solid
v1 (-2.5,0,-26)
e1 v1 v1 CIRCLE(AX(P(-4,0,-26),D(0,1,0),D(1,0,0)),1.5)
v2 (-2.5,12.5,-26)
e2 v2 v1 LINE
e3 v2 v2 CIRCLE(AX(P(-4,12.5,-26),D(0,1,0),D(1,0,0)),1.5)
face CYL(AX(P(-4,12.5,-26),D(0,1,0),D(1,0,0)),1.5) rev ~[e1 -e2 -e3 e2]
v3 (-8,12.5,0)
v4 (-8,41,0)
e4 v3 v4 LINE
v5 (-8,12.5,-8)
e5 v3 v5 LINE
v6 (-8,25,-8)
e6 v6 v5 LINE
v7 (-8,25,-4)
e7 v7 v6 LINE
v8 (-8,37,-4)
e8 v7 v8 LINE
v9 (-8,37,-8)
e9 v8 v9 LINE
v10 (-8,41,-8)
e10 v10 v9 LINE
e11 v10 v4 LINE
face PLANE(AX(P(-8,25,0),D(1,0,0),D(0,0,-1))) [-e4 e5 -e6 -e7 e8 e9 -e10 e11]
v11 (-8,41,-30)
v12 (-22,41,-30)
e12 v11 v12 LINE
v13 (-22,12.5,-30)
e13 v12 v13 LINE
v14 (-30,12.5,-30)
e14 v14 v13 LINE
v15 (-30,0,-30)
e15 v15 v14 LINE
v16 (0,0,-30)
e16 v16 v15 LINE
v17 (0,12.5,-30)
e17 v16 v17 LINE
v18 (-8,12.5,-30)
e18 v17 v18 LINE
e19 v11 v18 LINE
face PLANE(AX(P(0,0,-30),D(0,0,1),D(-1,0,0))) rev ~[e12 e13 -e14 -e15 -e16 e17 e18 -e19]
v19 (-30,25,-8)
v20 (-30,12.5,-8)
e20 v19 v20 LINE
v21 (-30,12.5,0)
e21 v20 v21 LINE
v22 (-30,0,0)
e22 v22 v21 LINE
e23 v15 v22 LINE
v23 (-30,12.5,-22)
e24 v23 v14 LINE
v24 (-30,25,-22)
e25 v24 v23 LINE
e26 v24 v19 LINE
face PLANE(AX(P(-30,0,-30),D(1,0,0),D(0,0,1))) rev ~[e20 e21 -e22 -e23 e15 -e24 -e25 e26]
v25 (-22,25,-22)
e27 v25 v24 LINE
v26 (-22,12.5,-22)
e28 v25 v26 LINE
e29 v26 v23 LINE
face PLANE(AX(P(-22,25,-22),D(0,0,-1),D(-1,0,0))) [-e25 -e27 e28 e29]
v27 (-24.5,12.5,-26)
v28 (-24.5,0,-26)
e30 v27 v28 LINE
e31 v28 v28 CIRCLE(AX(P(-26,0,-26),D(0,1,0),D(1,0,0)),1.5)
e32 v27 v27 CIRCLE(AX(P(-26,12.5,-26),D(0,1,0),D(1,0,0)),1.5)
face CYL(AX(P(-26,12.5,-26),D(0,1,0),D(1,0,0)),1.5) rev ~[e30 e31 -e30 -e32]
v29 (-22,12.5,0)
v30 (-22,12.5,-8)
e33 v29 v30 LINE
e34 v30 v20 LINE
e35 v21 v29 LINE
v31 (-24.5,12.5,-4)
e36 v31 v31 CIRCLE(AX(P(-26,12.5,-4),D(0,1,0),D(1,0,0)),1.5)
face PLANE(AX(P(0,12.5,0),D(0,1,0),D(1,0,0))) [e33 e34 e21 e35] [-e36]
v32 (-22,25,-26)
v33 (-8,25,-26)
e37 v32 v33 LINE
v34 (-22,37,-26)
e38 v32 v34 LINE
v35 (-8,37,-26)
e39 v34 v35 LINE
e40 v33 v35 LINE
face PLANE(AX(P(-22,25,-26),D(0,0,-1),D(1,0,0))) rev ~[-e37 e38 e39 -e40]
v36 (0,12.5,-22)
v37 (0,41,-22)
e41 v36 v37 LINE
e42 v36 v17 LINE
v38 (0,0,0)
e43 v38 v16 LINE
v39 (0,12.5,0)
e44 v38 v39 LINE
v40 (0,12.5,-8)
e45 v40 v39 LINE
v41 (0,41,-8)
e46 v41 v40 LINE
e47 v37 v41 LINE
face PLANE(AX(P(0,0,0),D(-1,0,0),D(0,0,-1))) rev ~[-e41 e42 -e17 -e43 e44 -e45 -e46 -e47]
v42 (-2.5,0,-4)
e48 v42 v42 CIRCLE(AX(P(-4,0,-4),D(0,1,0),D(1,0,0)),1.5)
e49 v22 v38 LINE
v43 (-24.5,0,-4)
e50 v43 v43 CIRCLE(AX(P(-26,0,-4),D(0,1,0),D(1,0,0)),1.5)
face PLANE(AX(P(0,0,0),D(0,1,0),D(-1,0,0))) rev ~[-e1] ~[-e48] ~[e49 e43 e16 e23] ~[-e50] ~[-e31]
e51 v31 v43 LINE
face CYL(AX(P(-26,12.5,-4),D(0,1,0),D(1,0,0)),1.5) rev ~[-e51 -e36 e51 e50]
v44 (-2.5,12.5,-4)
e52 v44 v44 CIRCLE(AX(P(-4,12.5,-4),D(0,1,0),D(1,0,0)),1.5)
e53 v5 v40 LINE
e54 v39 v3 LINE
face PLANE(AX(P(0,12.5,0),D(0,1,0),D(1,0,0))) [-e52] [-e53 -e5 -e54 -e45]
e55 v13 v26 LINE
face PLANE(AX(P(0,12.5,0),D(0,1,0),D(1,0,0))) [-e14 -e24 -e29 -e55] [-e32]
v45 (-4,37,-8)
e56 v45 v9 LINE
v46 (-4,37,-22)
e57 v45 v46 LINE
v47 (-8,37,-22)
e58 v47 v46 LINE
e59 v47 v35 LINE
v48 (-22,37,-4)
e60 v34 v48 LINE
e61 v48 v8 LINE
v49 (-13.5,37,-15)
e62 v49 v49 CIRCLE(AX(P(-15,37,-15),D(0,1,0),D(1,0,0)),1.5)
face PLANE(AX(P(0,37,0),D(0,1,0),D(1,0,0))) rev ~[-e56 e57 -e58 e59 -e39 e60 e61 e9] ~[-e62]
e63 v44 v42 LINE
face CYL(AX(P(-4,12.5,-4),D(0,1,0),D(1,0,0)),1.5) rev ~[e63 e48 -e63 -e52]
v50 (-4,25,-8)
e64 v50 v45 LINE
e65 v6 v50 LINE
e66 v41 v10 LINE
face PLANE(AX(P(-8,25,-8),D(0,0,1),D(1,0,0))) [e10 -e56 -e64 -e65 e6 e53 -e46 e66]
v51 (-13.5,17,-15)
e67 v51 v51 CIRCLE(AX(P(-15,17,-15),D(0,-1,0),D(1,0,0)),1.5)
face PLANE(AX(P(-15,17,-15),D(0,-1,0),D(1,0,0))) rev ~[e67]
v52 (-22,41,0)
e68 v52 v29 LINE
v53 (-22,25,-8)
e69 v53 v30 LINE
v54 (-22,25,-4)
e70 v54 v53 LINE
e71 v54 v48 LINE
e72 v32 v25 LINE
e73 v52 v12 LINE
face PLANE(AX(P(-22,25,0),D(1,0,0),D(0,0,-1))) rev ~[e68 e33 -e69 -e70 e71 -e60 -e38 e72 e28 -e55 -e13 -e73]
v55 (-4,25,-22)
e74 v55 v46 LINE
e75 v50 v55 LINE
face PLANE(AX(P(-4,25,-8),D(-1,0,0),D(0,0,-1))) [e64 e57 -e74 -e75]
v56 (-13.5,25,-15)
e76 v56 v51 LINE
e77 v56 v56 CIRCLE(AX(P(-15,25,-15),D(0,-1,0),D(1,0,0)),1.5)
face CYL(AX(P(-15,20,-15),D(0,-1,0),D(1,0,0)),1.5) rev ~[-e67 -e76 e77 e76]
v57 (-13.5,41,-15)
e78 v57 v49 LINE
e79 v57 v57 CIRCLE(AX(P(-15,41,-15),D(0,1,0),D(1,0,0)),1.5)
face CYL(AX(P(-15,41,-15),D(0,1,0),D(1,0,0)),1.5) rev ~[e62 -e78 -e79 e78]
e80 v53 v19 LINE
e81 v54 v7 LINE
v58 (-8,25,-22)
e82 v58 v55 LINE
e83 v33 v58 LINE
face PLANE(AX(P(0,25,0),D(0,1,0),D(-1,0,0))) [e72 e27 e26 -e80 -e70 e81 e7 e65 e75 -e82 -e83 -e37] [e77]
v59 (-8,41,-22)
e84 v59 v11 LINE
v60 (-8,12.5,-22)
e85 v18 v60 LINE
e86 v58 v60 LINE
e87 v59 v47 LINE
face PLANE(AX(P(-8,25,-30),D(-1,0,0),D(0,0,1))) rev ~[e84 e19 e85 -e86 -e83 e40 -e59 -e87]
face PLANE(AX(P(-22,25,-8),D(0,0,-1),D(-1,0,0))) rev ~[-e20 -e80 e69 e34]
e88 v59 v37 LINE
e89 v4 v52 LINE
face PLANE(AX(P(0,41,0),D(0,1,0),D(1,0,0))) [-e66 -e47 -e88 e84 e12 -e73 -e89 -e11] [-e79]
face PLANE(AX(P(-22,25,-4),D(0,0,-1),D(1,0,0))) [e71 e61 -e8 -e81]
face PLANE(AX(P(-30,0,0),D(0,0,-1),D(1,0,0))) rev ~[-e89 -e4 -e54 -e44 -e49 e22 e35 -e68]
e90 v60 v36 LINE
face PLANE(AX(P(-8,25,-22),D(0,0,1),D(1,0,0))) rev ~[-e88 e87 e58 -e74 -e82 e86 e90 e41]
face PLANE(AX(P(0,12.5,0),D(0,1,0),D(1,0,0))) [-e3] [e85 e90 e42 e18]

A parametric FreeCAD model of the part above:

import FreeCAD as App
import Part
import Sketcher
from FreeCAD import Vector
Q = App.Units.Quantity

doc = App.newDocument("Part")
body = doc.addObject("PartDesign::Body", "Body")

# Sketch on XZ plane
sketch1 = doc.addObject("Sketcher::SketchObject", "Sketch")
body.addObject(sketch1)
sketch1.AttachmentSupport = (doc.XZ_Plane, [""])
sketch1.MapMode = "FlatFace"
sketch1.addGeometry(Part.LineSegment(Vector(-30, 0, 0), Vector(0, 0, 0)), False)
sketch1.addGeometry(Part.LineSegment(Vector(0, 0, 0), Vector(0, -30, 0)), False)
sketch1.addGeometry(Part.LineSegment(Vector(0, -30, 0), Vector(-30, -30, 0)), False)
sketch1.addGeometry(Part.LineSegment(Vector(-30, -30, 0), Vector(-30, 0, 0)), False)
sketch1.addConstraint(Sketcher.Constraint("Coincident", 0, 2, 1, 1))
sketch1.addConstraint(Sketcher.Constraint("Coincident", 1, 2, 2, 1))
sketch1.addConstraint(Sketcher.Constraint("Coincident", 2, 2, 3, 1))
sketch1.addConstraint(Sketcher.Constraint("Coincident", 3, 2, 0, 1))
sketch1.addConstraint(Sketcher.Constraint("Horizontal", 0))
sketch1.addConstraint(Sketcher.Constraint("Vertical", 1))
sketch1.addConstraint(Sketcher.Constraint("Horizontal", 2))
sketch1.addConstraint(Sketcher.Constraint("Vertical", 3))
sketch1.addConstraint(Sketcher.Constraint("Coincident", 0, 2, -1, 1))
sketch1.addConstraint(Sketcher.Constraint("Equal", 2, 1))
sketch1.addConstraint(Sketcher.Constraint("DistanceX", 0, 1, 0, 2, Q("30 mm")))
pad1 = doc.addObject("PartDesign::Pad", "Pad")
body.addObject(pad1)
pad1.Profile = sketch1
pad1.Length = 25
pad1.Reversed = True

# Sketch on XZ plane
sketch2 = doc.addObject("Sketcher::SketchObject", "Sketch001")
body.addObject(sketch2)
sketch2.AttachmentSupport = (doc.XZ_Plane, [""])
sketch2.MapMode = "FlatFace"
sketch2.AttachmentOffset = App.Placement(Vector(0, 0, -25), App.Rotation())
sketch2.addGeometry(Part.LineSegment(Vector(-8, 0, 0), Vector(0, 0, 0)), False)
sketch2.addGeometry(Part.LineSegment(Vector(0, 0, 0), Vector(0, -8, 0)), False)
sketch2.addGeometry(Part.LineSegment(Vector(0, -8, 0), Vector(-8, -8, 0)), False)
sketch2.addGeometry(Part.LineSegment(Vector(-8, -8, 0), Vector(-8, 0, 0)), False)
sketch2.addGeometry(Part.LineSegment(Vector(0, -22, 0), Vector(0, -30, 0)), False)
sketch2.addGeometry(Part.LineSegment(Vector(0, -30, 0), Vector(-8, -30, 0)), False)
sketch2.addGeometry(Part.LineSegment(Vector(-8, -30, 0), Vector(-8, -22, 0)), False)
sketch2.addGeometry(Part.LineSegment(Vector(-8, -22, 0), Vector(0, -22, 0)), False)
sketch2.addGeometry(Part.LineSegment(Vector(-22, -30, 0), Vector(-30, -30, 0)), False)
sketch2.addGeometry(Part.LineSegment(Vector(-30, -30, 0), Vector(-30, -22, 0)), False)
sketch2.addGeometry(Part.LineSegment(Vector(-30, -22, 0), Vector(-22, -22, 0)), False)
sketch2.addGeometry(Part.LineSegment(Vector(-22, -22, 0), Vector(-22, -30, 0)), False)
sketch2.addGeometry(Part.LineSegment(Vector(-30, -8, 0), Vector(-30, 0, 0)), False)
sketch2.addGeometry(Part.LineSegment(Vector(-30, 0, 0), Vector(-22, 0, 0)), False)
sketch2.addGeometry(Part.LineSegment(Vector(-22, 0, 0), Vector(-22, -8, 0)), False)
sketch2.addGeometry(Part.LineSegment(Vector(-22, -8, 0), Vector(-30, -8, 0)), False)
sketch2.addConstraint(Sketcher.Constraint("Coincident", 0, 2, 1, 1))
sketch2.addConstraint(Sketcher.Constraint("Coincident", 1, 2, 2, 1))
sketch2.addConstraint(Sketcher.Constraint("Coincident", 2, 2, 3, 1))
sketch2.addConstraint(Sketcher.Constraint("Coincident", 3, 2, 0, 1))
sketch2.addConstraint(Sketcher.Constraint("Coincident", 4, 2, 5, 1))
sketch2.addConstraint(Sketcher.Constraint("Coincident", 5, 2, 6, 1))
sketch2.addConstraint(Sketcher.Constraint("Coincident", 6, 2, 7, 1))
sketch2.addConstraint(Sketcher.Constraint("Coincident", 7, 2, 4, 1))
sketch2.addConstraint(Sketcher.Constraint("Coincident", 8, 2, 9, 1))
sketch2.addConstraint(Sketcher.Constraint("Coincident", 9, 2, 10, 1))
sketch2.addConstraint(Sketcher.Constraint("Coincident", 10, 2, 11, 1))
sketch2.addConstraint(Sketcher.Constraint("Coincident", 11, 2, 8, 1))
sketch2.addConstraint(Sketcher.Constraint("Coincident", 12, 2, 13, 1))
sketch2.addConstraint(Sketcher.Constraint("Coincident", 13, 2, 14, 1))
sketch2.addConstraint(Sketcher.Constraint("Coincident", 14, 2, 15, 1))
sketch2.addConstraint(Sketcher.Constraint("Coincident", 15, 2, 12, 1))
sketch2.addConstraint(Sketcher.Constraint("Horizontal", 0))
sketch2.addConstraint(Sketcher.Constraint("Vertical", 1))
sketch2.addConstraint(Sketcher.Constraint("Horizontal", 2))
sketch2.addConstraint(Sketcher.Constraint("Vertical", 3))
sketch2.addConstraint(Sketcher.Constraint("Vertical", 4))
sketch2.addConstraint(Sketcher.Constraint("Horizontal", 5))
sketch2.addConstraint(Sketcher.Constraint("Vertical", 6))
sketch2.addConstraint(Sketcher.Constraint("Horizontal", 7))
sketch2.addConstraint(Sketcher.Constraint("Horizontal", 8))
sketch2.addConstraint(Sketcher.Constraint("Vertical", 9))
sketch2.addConstraint(Sketcher.Constraint("Horizontal", 10))
sketch2.addConstraint(Sketcher.Constraint("Vertical", 11))
sketch2.addConstraint(Sketcher.Constraint("Vertical", 12))
sketch2.addConstraint(Sketcher.Constraint("Horizontal", 13))
sketch2.addConstraint(Sketcher.Constraint("Vertical", 14))
sketch2.addConstraint(Sketcher.Constraint("Horizontal", 15))
sketch2.addConstraint(Sketcher.Constraint("Coincident", 0, 2, -1, 1))
sketch2.addConstraint(Sketcher.Constraint("PointOnObject", 4, 2, -2))
sketch2.addConstraint(Sketcher.Constraint("PointOnObject", 12, 2, -1))
sketch2.addConstraint(Sketcher.Constraint("Horizontal", 5, 2, 8, 2))
sketch2.addConstraint(Sketcher.Constraint("Horizontal", 7, 2, 9, 2))
sketch2.addConstraint(Sketcher.Constraint("Horizontal", 2, 2, 14, 2))
sketch2.addConstraint(Sketcher.Constraint("Vertical", 3, 2, 5, 2))
sketch2.addConstraint(Sketcher.Constraint("Vertical", 9, 2, 12, 2))
sketch2.addConstraint(Sketcher.Constraint("Vertical", 11, 2, 13, 2))
sketch2.addConstraint(Sketcher.Constraint("Equal", 7, 8))
sketch2.addConstraint(Sketcher.Constraint("Equal", 15, 1))
sketch2.addConstraint(Sketcher.Constraint("Equal", 3, 4))
sketch2.addConstraint(Sketcher.Constraint("DistanceX", 0, 1, 0, 2, Q("8 mm")))
sketch2.addConstraint(Sketcher.Constraint("DistanceY", 4, 2, -1, 1, Q("30 mm")))
sketch2.addConstraint(Sketcher.Constraint("DistanceX", 8, 2, -1, 1, Q("30 mm")))
pocket1 = doc.addObject("PartDesign::Pocket", "Pocket")
body.addObject(pocket1)
pocket1.Profile = sketch2
pocket1.Length = 12.5
pocket1.Reversed = True

# Sketch on XZ plane
sketch3 = doc.addObject("Sketcher::SketchObject", "Sketch002")
body.addObject(sketch3)
sketch3.AttachmentSupport = (doc.XZ_Plane, [""])
sketch3.MapMode = "FlatFace"
sketch3.AttachmentOffset = App.Placement(Vector(0, 0, -12.5), App.Rotation())
sketch3.addGeometry(Part.Circle(Vector(-4, -4, 0), Vector(0, 0, 1), 1.5), False)
sketch3.addGeometry(Part.Circle(Vector(-26, -4, 0), Vector(0, 0, 1), 1.5), False)
sketch3.addGeometry(Part.Circle(Vector(-4, -26, 0), Vector(0, 0, 1), 1.5), False)
sketch3.addGeometry(Part.Circle(Vector(-26, -26, 0), Vector(0, 0, 1), 1.5), False)
sketch3.addConstraint(Sketcher.Constraint("Equal", 0, 1))
sketch3.addConstraint(Sketcher.Constraint("Equal", 1, 2))
sketch3.addConstraint(Sketcher.Constraint("Equal", 2, 3))
sketch3.addConstraint(Sketcher.Constraint("Horizontal", 0, 3, 1, 3))
sketch3.addConstraint(Sketcher.Constraint("Horizontal", 2, 3, 3, 3))
sketch3.addConstraint(Sketcher.Constraint("Vertical", 0, 3, 2, 3))
sketch3.addConstraint(Sketcher.Constraint("Vertical", 1, 3, 3, 3))
sketch3.addConstraint(Sketcher.Constraint("Diameter", 0, Q("3 mm")))
sketch3.addConstraint(Sketcher.Constraint("DistanceX", 0, 3, -1, 1, Q("4 mm")))
sketch3.addConstraint(Sketcher.Constraint("DistanceY", 0, 3, -1, 1, Q("4 mm")))
sketch3.addConstraint(Sketcher.Constraint("DistanceX", 1, 3, -1, 1, Q("26 mm")))
sketch3.addConstraint(Sketcher.Constraint("DistanceY", 2, 3, -1, 1, Q("26 mm")))
pocket2 = doc.addObject("PartDesign::Pocket", "Pocket001")
body.addObject(pocket2)
pocket2.Profile = sketch3
pocket2.Type = "UpToFirst"
pocket2.Reversed = True

# Sketch on XZ plane
sketch4 = doc.addObject("Sketcher::SketchObject", "Sketch003")
body.addObject(sketch4)
sketch4.AttachmentSupport = (doc.XZ_Plane, [""])
sketch4.MapMode = "FlatFace"
sketch4.AttachmentOffset = App.Placement(Vector(0, 0, -20), App.Rotation())
sketch4.addGeometry(Part.Circle(Vector(-15, -15, 0), Vector(0, 0, 1), 1.5), False)
sketch4.addConstraint(Sketcher.Constraint("Diameter", 0, Q("3 mm")))
sketch4.addConstraint(Sketcher.Constraint("DistanceX", 0, 3, -1, 1, Q("15 mm")))
sketch4.addConstraint(Sketcher.Constraint("DistanceY", 0, 3, -1, 1, Q("15 mm")))
pocket3 = doc.addObject("PartDesign::Pocket", "Pocket002")
body.addObject(pocket3)
pocket3.Profile = sketch4
pocket3.Type = "TwoLengths"
pocket3.Length = 5
pocket3.Length2 = 3

# Sketch on XZ plane
sketch5 = doc.addObject("Sketcher::SketchObject", "Sketch004")
body.addObject(sketch5)
sketch5.AttachmentSupport = (doc.XZ_Plane, [""])
sketch5.MapMode = "FlatFace"
sketch5.AttachmentOffset = App.Placement(Vector(0, 0, -25), App.Rotation())
sketch5.addGeometry(Part.LineSegment(Vector(0, -8, 0), Vector(0, -22, 0)), False)
sketch5.addGeometry(Part.LineSegment(Vector(0, -22, 0), Vector(-4, -22, 0)), False)
sketch5.addGeometry(Part.LineSegment(Vector(-4, -22, 0), Vector(-4, -8, 0)), False)
sketch5.addGeometry(Part.LineSegment(Vector(-4, -8, 0), Vector(0, -8, 0)), False)
sketch5.addGeometry(Part.LineSegment(Vector(-8, 0, 0), Vector(-8, -4, 0)), False)
sketch5.addGeometry(Part.LineSegment(Vector(-8, -4, 0), Vector(-22, -4, 0)), False)
sketch5.addGeometry(Part.LineSegment(Vector(-22, -4, 0), Vector(-22, 0, 0)), False)
sketch5.addGeometry(Part.LineSegment(Vector(-22, 0, 0), Vector(-8, 0, 0)), False)
sketch5.addGeometry(Part.LineSegment(Vector(-22, -26, 0), Vector(-8, -26, 0)), False)
sketch5.addGeometry(Part.LineSegment(Vector(-8, -26, 0), Vector(-8, -30, 0)), False)
sketch5.addGeometry(Part.LineSegment(Vector(-8, -30, 0), Vector(-22, -30, 0)), False)
sketch5.addGeometry(Part.LineSegment(Vector(-22, -30, 0), Vector(-22, -26, 0)), False)
sketch5.addConstraint(Sketcher.Constraint("Coincident", 0, 2, 1, 1))
sketch5.addConstraint(Sketcher.Constraint("Coincident", 1, 2, 2, 1))
sketch5.addConstraint(Sketcher.Constraint("Coincident", 2, 2, 3, 1))
sketch5.addConstraint(Sketcher.Constraint("Coincident", 3, 2, 0, 1))
sketch5.addConstraint(Sketcher.Constraint("Coincident", 4, 2, 5, 1))
sketch5.addConstraint(Sketcher.Constraint("Coincident", 5, 2, 6, 1))
sketch5.addConstraint(Sketcher.Constraint("Coincident", 6, 2, 7, 1))
sketch5.addConstraint(Sketcher.Constraint("Coincident", 7, 2, 4, 1))
sketch5.addConstraint(Sketcher.Constraint("Coincident", 8, 2, 9, 1))
sketch5.addConstraint(Sketcher.Constraint("Coincident", 9, 2, 10, 1))
sketch5.addConstraint(Sketcher.Constraint("Coincident", 10, 2, 11, 1))
sketch5.addConstraint(Sketcher.Constraint("Coincident", 11, 2, 8, 1))
sketch5.addConstraint(Sketcher.Constraint("Vertical", 0))
sketch5.addConstraint(Sketcher.Constraint("Horizontal", 1))
sketch5.addConstraint(Sketcher.Constraint("Vertical", 2))
sketch5.addConstraint(Sketcher.Constraint("Horizontal", 3))
sketch5.addConstraint(Sketcher.Constraint("Vertical", 4))
sketch5.addConstraint(Sketcher.Constraint("Horizontal", 5))
sketch5.addConstraint(Sketcher.Constraint("Vertical", 6))
sketch5.addConstraint(Sketcher.Constraint("Horizontal", 7))
sketch5.addConstraint(Sketcher.Constraint("Horizontal", 8))
sketch5.addConstraint(Sketcher.Constraint("Vertical", 9))
sketch5.addConstraint(Sketcher.Constraint("Horizontal", 10))
sketch5.addConstraint(Sketcher.Constraint("Vertical", 11))
sketch5.addConstraint(Sketcher.Constraint("PointOnObject", 0, 2, -2))
sketch5.addConstraint(Sketcher.Constraint("PointOnObject", 6, 2, -1))
sketch5.addConstraint(Sketcher.Constraint("Vertical", 7, 2, 8, 2))
sketch5.addConstraint(Sketcher.Constraint("Vertical", 6, 2, 10, 2))
sketch5.addConstraint(Sketcher.Constraint("Equal", 10, 0))
sketch5.addConstraint(Sketcher.Constraint("Equal", 3, 4))
sketch5.addConstraint(Sketcher.Constraint("Equal", 6, 9))
sketch5.addConstraint(Sketcher.Constraint("DistanceX", 1, 2, 1, 1, Q("4 mm")))
sketch5.addConstraint(Sketcher.Constraint("DistanceX", 5, 2, 5, 1, Q("14 mm")))
sketch5.addConstraint(Sketcher.Constraint("DistanceX", 4, 2, 2, 2, Q("4 mm")))
sketch5.addConstraint(Sketcher.Constraint("DistanceY", 2, 2, 4, 2, Q("4 mm")))
sketch5.addConstraint(Sketcher.Constraint("DistanceY", 8, 2, 1, 2, Q("4 mm")))
pad2 = doc.addObject("PartDesign::Pad", "Pad001")
body.addObject(pad2)
pad2.Profile = sketch5
pad2.Length = 16
pad2.Reversed = True

# Sketch on XZ plane
sketch6 = doc.addObject("Sketcher::SketchObject", "Sketch005")
body.addObject(sketch6)
sketch6.AttachmentSupport = (doc.XZ_Plane, [""])
sketch6.MapMode = "FlatFace"
sketch6.AttachmentOffset = App.Placement(Vector(0, 0, -41), App.Rotation())
sketch6.addGeometry(Part.LineSegment(Vector(-22, 0, 0), Vector(-8, 0, 0)), False)
sketch6.addGeometry(Part.LineSegment(Vector(-8, 0, 0), Vector(-8, -8, 0)), False)
sketch6.addGeometry(Part.LineSegment(Vector(-8, -8, 0), Vector(0, -8, 0)), False)
sketch6.addGeometry(Part.LineSegment(Vector(0, -8, 0), Vector(0, -22, 0)), False)
sketch6.addGeometry(Part.LineSegment(Vector(0, -22, 0), Vector(-8, -22, 0)), False)
sketch6.addGeometry(Part.LineSegment(Vector(-8, -22, 0), Vector(-8, -30, 0)), False)
sketch6.addGeometry(Part.LineSegment(Vector(-8, -30, 0), Vector(-22, -30, 0)), False)
sketch6.addGeometry(Part.LineSegment(Vector(-22, -30, 0), Vector(-22, 0, 0)), False)
sketch6.addGeometry(Part.Circle(Vector(-15, -15, 0), Vector(0, 0, 1), 1.5), False)
sketch6.addConstraint(Sketcher.Constraint("Coincident", 0, 2, 1, 1))
sketch6.addConstraint(Sketcher.Constraint("Coincident", 1, 2, 2, 1))
sketch6.addConstraint(Sketcher.Constraint("Coincident", 2, 2, 3, 1))
sketch6.addConstraint(Sketcher.Constraint("Coincident", 3, 2, 4, 1))
sketch6.addConstraint(Sketcher.Constraint("Coincident", 4, 2, 5, 1))
sketch6.addConstraint(Sketcher.Constraint("Coincident", 5, 2, 6, 1))
sketch6.addConstraint(Sketcher.Constraint("Coincident", 6, 2, 7, 1))
sketch6.addConstraint(Sketcher.Constraint("Coincident", 7, 2, 0, 1))
sketch6.addConstraint(Sketcher.Constraint("Horizontal", 0))
sketch6.addConstraint(Sketcher.Constraint("Vertical", 1))
sketch6.addConstraint(Sketcher.Constraint("Horizontal", 2))
sketch6.addConstraint(Sketcher.Constraint("Vertical", 3))
sketch6.addConstraint(Sketcher.Constraint("Horizontal", 4))
sketch6.addConstraint(Sketcher.Constraint("Vertical", 5))
sketch6.addConstraint(Sketcher.Constraint("Horizontal", 6))
sketch6.addConstraint(Sketcher.Constraint("Vertical", 7))
sketch6.addConstraint(Sketcher.Constraint("PointOnObject", 0, 2, -1))
sketch6.addConstraint(Sketcher.Constraint("PointOnObject", 2, 2, -2))
sketch6.addConstraint(Sketcher.Constraint("Vertical", 1, 2, 4, 2))
sketch6.addConstraint(Sketcher.Constraint("Equal", 4, 1))
sketch6.addConstraint(Sketcher.Constraint("Equal", 6, 3))
sketch6.addConstraint(Sketcher.Constraint("Equal", 1, 5))
sketch6.addConstraint(Sketcher.Constraint("Diameter", 8, Q("3 mm")))
sketch6.addConstraint(Sketcher.Constraint("DistanceX", 0, 1, 0, 2, Q("14 mm")))
sketch6.addConstraint(Sketcher.Constraint("DistanceX", 2, 1, 2, 2, Q("8 mm")))
sketch6.addConstraint(Sketcher.Constraint("DistanceX", 8, 3, -1, 1, Q("15 mm")))
sketch6.addConstraint(Sketcher.Constraint("DistanceY", 8, 3, -1, 1, Q("15 mm")))
pad3 = doc.addObject("PartDesign::Pad", "Pad002")
body.addObject(pad3)
pad3.Profile = sketch6
pad3.Length = 4

doc.recompute()
